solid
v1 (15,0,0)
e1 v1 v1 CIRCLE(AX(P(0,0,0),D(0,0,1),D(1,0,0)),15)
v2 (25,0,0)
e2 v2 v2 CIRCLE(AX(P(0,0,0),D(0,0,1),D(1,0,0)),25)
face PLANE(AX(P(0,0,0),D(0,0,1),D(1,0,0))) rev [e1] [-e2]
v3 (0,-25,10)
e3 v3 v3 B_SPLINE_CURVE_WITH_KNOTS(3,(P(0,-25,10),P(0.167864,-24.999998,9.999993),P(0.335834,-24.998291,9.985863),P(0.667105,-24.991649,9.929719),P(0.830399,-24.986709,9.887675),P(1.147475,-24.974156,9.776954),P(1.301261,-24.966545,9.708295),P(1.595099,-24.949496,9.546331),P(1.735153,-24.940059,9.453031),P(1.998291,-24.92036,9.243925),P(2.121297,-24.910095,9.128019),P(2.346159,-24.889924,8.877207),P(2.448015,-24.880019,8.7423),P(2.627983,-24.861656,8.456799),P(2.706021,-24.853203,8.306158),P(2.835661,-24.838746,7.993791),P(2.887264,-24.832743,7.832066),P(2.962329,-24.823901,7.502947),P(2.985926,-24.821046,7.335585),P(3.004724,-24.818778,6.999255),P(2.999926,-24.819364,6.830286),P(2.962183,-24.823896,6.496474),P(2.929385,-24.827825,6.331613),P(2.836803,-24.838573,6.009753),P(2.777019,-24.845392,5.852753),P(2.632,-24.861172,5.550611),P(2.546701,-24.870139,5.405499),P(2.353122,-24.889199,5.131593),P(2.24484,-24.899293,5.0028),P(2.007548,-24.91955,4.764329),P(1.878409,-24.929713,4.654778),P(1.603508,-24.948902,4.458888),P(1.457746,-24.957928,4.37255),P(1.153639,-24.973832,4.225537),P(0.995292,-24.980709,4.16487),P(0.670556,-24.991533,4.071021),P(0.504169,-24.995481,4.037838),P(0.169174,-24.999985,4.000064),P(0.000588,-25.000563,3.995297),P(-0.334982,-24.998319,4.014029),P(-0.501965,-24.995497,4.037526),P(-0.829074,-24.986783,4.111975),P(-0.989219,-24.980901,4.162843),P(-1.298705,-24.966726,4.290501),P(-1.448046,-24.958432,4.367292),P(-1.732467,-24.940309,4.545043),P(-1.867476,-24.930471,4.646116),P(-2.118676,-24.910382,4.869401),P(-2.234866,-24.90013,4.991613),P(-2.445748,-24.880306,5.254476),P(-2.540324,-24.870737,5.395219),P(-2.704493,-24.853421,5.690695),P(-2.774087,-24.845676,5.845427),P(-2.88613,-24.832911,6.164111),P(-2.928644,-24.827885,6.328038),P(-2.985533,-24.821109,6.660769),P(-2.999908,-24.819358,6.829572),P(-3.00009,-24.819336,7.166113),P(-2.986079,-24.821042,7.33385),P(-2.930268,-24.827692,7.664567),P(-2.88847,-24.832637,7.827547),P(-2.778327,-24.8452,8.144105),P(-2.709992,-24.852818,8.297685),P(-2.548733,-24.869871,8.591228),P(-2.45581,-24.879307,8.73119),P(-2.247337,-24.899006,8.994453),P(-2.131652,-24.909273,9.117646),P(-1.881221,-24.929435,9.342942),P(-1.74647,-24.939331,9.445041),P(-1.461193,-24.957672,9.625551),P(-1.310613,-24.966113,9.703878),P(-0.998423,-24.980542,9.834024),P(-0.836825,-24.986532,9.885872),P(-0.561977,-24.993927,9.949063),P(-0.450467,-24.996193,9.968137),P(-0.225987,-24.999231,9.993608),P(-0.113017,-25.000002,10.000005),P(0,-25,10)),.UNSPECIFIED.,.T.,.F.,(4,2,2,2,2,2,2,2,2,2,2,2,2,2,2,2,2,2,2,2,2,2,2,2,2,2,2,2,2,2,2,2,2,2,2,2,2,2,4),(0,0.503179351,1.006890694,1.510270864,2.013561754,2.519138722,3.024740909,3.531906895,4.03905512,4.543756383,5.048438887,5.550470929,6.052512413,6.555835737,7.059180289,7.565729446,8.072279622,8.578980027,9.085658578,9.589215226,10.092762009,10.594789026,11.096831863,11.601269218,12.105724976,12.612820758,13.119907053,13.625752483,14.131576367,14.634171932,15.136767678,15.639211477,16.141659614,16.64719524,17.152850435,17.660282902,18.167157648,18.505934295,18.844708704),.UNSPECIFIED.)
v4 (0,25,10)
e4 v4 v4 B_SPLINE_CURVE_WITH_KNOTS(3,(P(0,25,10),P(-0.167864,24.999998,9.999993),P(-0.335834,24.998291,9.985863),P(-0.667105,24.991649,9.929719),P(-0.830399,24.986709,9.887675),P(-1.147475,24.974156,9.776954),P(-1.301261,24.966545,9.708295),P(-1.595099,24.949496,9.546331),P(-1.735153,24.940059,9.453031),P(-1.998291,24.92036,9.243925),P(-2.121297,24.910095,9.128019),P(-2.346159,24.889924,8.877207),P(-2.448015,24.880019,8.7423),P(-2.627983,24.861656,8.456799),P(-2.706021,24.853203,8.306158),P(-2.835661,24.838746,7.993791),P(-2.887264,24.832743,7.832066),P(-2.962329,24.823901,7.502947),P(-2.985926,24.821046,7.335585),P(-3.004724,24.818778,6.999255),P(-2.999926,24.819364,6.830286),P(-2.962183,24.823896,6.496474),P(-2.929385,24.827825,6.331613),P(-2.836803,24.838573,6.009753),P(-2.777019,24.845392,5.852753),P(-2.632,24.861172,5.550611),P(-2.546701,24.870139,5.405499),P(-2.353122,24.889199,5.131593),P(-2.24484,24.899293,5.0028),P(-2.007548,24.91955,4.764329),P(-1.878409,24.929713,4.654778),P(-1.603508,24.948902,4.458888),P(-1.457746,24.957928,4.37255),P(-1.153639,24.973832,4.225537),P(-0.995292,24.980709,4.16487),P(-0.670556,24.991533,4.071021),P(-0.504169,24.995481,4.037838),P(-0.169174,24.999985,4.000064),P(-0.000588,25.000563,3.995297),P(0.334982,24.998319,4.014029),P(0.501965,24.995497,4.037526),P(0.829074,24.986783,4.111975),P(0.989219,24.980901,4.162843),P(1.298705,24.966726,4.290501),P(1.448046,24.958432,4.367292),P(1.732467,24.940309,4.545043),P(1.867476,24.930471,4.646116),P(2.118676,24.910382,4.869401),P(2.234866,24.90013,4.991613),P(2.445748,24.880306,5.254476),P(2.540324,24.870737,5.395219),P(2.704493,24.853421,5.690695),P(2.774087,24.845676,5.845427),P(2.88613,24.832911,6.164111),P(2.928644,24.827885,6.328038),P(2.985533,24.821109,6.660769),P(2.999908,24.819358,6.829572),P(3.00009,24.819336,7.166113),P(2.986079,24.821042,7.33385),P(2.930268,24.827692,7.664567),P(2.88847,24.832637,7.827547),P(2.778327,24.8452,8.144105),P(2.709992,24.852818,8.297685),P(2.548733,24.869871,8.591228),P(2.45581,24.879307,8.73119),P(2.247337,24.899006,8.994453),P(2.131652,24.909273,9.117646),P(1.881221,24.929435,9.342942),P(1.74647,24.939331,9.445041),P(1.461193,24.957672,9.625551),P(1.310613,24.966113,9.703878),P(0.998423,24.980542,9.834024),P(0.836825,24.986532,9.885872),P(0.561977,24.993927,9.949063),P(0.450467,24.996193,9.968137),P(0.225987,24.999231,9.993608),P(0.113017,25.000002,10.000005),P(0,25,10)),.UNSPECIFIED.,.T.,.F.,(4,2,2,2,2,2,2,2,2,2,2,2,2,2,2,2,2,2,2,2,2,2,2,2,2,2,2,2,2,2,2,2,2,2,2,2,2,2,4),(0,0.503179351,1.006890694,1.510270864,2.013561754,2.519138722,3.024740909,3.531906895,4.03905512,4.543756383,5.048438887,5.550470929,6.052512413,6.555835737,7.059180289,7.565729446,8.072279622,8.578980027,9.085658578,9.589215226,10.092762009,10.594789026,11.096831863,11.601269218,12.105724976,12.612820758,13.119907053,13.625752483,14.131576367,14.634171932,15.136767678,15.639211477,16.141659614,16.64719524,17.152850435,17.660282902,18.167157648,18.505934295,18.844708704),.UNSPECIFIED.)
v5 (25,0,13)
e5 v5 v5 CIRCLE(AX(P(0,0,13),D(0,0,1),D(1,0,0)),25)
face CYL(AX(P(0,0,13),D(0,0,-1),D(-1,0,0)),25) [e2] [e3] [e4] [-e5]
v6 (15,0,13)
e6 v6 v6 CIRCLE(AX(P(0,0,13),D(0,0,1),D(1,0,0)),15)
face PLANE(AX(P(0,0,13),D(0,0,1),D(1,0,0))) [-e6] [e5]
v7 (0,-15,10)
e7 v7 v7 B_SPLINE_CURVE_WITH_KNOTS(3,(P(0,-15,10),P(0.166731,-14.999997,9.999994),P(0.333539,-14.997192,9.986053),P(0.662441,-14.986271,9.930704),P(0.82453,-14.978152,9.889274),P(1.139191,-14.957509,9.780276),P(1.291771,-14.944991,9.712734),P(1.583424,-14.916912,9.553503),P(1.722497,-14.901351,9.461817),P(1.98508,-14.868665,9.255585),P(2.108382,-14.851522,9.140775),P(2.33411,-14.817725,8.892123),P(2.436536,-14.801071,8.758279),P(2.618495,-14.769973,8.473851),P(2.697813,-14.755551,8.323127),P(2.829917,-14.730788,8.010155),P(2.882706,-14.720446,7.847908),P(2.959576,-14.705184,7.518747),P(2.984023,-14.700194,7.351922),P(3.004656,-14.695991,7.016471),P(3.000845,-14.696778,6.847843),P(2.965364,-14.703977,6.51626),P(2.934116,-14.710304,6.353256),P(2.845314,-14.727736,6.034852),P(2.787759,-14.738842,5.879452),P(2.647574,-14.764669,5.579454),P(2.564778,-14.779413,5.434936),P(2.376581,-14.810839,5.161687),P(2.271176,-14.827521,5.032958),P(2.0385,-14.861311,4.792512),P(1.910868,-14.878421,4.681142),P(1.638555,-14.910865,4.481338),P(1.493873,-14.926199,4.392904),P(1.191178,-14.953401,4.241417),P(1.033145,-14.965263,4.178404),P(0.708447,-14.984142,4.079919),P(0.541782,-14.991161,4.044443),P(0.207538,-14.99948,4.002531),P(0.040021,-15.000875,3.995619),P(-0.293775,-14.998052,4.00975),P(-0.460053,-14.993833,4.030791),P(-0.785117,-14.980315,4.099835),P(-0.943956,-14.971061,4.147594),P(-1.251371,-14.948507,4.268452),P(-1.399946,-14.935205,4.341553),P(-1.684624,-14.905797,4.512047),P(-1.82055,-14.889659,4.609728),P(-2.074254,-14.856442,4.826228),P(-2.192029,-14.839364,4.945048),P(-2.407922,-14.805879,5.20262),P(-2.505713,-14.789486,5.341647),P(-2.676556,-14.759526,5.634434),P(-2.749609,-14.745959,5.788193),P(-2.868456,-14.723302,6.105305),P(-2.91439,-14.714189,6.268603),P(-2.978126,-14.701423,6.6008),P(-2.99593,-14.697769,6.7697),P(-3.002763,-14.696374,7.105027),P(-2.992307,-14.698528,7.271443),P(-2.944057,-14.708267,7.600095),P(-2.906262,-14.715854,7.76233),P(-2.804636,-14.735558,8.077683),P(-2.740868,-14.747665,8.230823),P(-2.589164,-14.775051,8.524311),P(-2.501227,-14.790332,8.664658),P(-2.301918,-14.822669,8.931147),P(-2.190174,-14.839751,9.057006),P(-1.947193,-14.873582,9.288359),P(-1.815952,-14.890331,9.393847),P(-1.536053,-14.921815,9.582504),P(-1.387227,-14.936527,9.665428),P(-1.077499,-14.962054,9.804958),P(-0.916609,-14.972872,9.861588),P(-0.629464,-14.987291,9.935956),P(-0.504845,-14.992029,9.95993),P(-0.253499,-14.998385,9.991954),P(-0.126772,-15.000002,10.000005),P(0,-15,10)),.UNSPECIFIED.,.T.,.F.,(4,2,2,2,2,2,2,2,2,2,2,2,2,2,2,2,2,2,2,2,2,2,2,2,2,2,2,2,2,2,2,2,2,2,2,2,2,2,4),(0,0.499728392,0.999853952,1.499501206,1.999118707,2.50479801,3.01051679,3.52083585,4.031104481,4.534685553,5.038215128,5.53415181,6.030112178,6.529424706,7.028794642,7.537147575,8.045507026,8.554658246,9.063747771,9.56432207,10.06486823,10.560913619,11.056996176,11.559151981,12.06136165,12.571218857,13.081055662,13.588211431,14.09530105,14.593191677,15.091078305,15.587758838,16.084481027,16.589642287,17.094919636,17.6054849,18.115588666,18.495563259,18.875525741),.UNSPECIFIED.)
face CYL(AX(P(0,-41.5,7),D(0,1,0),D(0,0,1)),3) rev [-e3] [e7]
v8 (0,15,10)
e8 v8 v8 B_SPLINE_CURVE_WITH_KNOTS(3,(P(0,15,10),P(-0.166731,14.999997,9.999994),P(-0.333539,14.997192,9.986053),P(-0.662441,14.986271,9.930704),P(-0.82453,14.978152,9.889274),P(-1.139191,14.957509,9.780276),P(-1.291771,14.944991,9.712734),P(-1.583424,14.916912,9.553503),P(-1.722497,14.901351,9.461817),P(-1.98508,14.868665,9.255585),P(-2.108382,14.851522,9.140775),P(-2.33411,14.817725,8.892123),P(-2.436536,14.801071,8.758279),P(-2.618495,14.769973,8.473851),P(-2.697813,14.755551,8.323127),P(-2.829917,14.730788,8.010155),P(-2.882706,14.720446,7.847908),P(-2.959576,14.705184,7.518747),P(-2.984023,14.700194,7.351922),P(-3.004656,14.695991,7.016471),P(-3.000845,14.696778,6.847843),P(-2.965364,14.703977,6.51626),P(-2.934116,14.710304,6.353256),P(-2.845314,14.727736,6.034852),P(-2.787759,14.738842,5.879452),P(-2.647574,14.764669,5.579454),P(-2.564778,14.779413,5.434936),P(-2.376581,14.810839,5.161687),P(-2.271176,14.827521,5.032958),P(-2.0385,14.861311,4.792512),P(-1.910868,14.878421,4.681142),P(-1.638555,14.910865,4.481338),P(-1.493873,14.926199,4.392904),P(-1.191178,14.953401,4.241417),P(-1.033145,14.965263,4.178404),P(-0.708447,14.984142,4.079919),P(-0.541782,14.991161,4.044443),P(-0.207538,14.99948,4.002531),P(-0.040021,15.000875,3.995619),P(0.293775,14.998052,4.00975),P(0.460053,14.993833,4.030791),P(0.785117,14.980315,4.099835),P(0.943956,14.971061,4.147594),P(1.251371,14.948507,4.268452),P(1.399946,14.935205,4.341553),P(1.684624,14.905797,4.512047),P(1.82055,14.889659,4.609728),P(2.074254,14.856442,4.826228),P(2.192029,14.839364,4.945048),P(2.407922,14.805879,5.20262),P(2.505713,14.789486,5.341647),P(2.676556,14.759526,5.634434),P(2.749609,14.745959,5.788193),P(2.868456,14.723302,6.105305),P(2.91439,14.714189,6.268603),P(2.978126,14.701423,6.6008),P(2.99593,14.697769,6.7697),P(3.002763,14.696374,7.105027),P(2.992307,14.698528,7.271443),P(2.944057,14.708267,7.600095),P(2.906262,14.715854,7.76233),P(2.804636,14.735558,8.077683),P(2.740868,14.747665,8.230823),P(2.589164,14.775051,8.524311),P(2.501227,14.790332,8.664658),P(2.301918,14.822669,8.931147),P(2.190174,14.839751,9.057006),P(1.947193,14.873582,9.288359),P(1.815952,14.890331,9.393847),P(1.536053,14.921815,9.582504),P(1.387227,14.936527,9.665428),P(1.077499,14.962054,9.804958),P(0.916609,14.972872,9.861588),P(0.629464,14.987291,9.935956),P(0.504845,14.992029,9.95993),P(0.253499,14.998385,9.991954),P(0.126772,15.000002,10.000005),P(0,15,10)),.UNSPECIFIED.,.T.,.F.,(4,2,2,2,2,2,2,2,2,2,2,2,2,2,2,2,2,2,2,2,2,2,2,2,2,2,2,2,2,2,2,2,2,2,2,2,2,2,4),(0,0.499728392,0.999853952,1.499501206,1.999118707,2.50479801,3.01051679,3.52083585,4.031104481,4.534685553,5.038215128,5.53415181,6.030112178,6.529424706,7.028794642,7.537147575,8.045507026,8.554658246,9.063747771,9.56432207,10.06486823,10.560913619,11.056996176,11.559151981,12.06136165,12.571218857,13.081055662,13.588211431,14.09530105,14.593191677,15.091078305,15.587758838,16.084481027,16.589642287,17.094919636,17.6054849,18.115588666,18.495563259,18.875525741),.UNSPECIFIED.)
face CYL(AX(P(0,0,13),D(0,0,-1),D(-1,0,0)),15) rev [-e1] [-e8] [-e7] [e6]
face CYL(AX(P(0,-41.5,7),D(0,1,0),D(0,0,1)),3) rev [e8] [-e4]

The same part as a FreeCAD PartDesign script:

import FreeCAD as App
import Part
import Sketcher

V = App.Vector
Q = App.Units.Quantity

doc = App.newDocument("Part")
body = doc.addObject("PartDesign::Body", "Body")

# Sketch on XY plane
sketch1 = body.newObject("Sketcher::SketchObject", "Sketch")
sketch1.AttachmentSupport = (doc.getObject("XY_Plane"), [""])
sketch1.MapMode = "FlatFace"
sketch1.addGeometry(Part.Circle(V(0, 0, 0), V(0, 0, 1), 25), False)
sketch1.addGeometry(Part.Circle(V(0, 0, 0), V(0, 0, 1), 15), False)
sketch1.addConstraint(Sketcher.Constraint("Coincident", 0, 3, -1, 1))
sketch1.addConstraint(Sketcher.Constraint("Coincident", 1, 3, -1, 1))
sketch1.addConstraint(Sketcher.Constraint("Diameter", 0, Q("50 mm")))
sketch1.addConstraint(Sketcher.Constraint("Diameter", 1, Q("30 mm")))
pad1 = body.newObject("PartDesign::Pad", "Pad")
pad1.Profile = sketch1
pad1.Length = 13

# Sketch on XZ plane
sketch2 = body.newObject("Sketcher::SketchObject", "Sketch001")
sketch2.AttachmentSupport = (doc.getObject("XZ_Plane"), [""])
sketch2.MapMode = "FlatFace"
sketch2.addGeometry(Part.Circle(V(0, 7, 0), V(0, 0, 1), 3), False)
sketch2.addConstraint(Sketcher.Constraint("PointOnObject", 0, 3, -2))
sketch2.addConstraint(Sketcher.Constraint("Diameter", 0, Q("6 mm")))
sketch2.addConstraint(Sketcher.Constraint("DistanceY", -1, 1, 0, 3, Q("7 mm")))
pocket1 = body.newObject("PartDesign::Pocket", "Pocket")
pocket1.Profile = sketch2
pocket1.Length = 83
pocket1.Midplane = True

doc.recompute()
